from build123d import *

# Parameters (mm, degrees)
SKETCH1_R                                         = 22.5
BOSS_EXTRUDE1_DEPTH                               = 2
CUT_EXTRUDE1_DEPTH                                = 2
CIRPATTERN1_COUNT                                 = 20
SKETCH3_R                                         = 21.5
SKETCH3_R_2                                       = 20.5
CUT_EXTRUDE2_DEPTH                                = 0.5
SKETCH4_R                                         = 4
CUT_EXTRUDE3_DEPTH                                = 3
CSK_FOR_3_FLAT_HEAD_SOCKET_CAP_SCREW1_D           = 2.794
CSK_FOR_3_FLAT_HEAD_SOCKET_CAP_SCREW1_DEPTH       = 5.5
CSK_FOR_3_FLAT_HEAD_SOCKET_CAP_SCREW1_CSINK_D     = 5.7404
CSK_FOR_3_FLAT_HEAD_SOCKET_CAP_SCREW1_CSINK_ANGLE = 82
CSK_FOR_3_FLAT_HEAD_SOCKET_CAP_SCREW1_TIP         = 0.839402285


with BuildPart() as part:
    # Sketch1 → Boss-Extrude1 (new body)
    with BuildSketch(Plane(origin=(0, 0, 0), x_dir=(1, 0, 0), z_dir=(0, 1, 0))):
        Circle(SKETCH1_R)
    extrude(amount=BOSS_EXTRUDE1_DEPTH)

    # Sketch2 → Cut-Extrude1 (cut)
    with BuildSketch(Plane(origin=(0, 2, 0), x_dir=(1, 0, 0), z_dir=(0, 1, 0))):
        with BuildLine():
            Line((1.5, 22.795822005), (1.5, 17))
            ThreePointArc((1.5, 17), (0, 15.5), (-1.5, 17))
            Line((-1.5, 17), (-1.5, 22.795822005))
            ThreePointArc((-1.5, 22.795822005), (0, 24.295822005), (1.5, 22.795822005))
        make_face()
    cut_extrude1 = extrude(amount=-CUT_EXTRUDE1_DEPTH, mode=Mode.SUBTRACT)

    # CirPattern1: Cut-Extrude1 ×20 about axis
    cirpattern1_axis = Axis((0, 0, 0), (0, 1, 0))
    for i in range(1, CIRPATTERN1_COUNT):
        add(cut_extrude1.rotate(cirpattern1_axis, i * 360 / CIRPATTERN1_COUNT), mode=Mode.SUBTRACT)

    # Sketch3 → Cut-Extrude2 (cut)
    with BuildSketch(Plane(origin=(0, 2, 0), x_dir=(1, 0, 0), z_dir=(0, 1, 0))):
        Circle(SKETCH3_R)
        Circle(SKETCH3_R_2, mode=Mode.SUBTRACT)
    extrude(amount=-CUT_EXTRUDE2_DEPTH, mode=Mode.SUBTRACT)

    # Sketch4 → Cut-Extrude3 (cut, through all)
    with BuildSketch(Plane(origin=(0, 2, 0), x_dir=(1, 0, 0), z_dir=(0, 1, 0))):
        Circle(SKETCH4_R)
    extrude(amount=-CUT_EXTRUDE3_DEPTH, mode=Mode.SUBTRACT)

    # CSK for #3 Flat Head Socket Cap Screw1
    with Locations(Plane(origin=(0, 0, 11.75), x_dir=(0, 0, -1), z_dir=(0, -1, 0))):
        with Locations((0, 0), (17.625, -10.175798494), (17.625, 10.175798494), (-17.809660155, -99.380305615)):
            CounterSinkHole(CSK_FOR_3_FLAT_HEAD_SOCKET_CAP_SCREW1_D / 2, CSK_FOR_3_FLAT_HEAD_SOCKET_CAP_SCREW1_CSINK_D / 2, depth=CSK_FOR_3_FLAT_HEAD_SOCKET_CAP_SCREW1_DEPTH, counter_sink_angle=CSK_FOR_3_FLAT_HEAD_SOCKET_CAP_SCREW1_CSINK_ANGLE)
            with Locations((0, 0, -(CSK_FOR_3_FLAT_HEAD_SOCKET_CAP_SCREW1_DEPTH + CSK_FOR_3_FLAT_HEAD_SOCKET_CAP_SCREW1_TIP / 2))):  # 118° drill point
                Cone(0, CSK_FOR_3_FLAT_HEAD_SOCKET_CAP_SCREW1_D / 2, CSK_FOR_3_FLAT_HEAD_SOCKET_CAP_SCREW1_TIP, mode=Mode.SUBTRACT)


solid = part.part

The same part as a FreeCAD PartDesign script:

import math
import FreeCAD as App
import Part
import Sketcher
Q = App.Units.Quantity

doc = App.newDocument("Part")
body = doc.addObject("PartDesign::Body", "Body")

# Sketch on XZ plane
sketch1 = body.newObject("Sketcher::SketchObject", "Sketch")
sketch1.AttachmentSupport = (doc.getObject("XZ_Plane"), [""])
sketch1.MapMode = "FlatFace"
sketch1.addGeometry(Part.Circle(App.Vector(0, 0, 0), App.Vector(0, 0, 1), 22.5), False)
sketch1.addConstraint([
    Sketcher.Constraint("Coincident", 0, 3, -1, 1),
    Sketcher.Constraint("Diameter", 0, Q("45 mm")),
])
pad1 = body.newObject("PartDesign::Pad", "Pad")
pad1.Profile = sketch1
pad1.Length = 2
pad1.Reversed = True

# Sketch on XZ plane
sketch2 = body.newObject("Sketcher::SketchObject", "Sketch001")
sketch2.AttachmentSupport = (doc.getObject("XZ_Plane"), [""])
sketch2.MapMode = "FlatFace"
sketch2.AttachmentOffset = App.Placement(App.Vector(0, 0, -2), App.Rotation())
sketch2.addGeometry([
    Part.LineSegment(App.Vector(1.5, -17, 0), App.Vector(1.5, -22.795822, 0)),
    Part.ArcOfCircle(Part.Circle(App.Vector(0, -22.795822, 0), App.Vector(0, 0, 1), 1.5), math.radians(180), math.radians(360)),
    Part.LineSegment(App.Vector(-1.5, -22.795822, 0), App.Vector(-1.5, -17, 0)),
    Part.ArcOfCircle(Part.Circle(App.Vector(0, -17, 0), App.Vector(0, 0, 1), 1.5), math.radians(0), math.radians(180)),
], False)
sketch2.addConstraint([
    Sketcher.Constraint("Tangent", 0, 2, 1, 2),
    Sketcher.Constraint("Tangent", 1, 1, 2, 1),
    Sketcher.Constraint("Tangent", 2, 2, 3, 2),
    Sketcher.Constraint("Tangent", 3, 1, 0, 1),
    Sketcher.Constraint("Vertical", 0),
    Sketcher.Constraint("Vertical", 2),
    Sketcher.Constraint("PointOnObject", 1, 3, -2),
    Sketcher.Constraint("Radius", 1, Q("1.5 mm")),
    Sketcher.Constraint("DistanceY", 3, 3, -1, 1, Q("17 mm")),
    Sketcher.Constraint("DistanceY", 0, 2, 0, 1, Q("5.795822 mm")),
])
pocket1 = body.newObject("PartDesign::Pocket", "Pocket")
pocket1.Profile = sketch2
pocket1.Length = 2
pocket1.Reversed = True
doc.recompute()

polarpattern = body.newObject("PartDesign::PolarPattern", "PolarPattern")
polarpattern.Originals = [pocket1]
polarpattern.Axis = (doc.getObject("Y_Axis"), [""])
polarpattern.Angle = 360
polarpattern.Occurrences = 20
body.Tip = polarpattern

# Sketch on XZ plane
sketch3 = body.newObject("Sketcher::SketchObject", "Sketch002")
sketch3.AttachmentSupport = (doc.getObject("XZ_Plane"), [""])
sketch3.MapMode = "FlatFace"
sketch3.AttachmentOffset = App.Placement(App.Vector(0, 0, -2), App.Rotation())
sketch3.addGeometry([
    Part.Circle(App.Vector(0, 0, 0), App.Vector(0, 0, 1), 21.5),
    Part.Circle(App.Vector(0, 0, 0), App.Vector(0, 0, 1), 20.5),
], False)
sketch3.addConstraint([
    Sketcher.Constraint("Coincident", 0, 3, -1, 1),
    Sketcher.Constraint("Coincident", 1, 3, -1, 1),
    Sketcher.Constraint("Diameter", 0, Q("43 mm")),
    Sketcher.Constraint("Diameter", 1, Q("41 mm")),
])
pocket2 = body.newObject("PartDesign::Pocket", "Pocket001")
pocket2.Profile = sketch3
pocket2.Length = 0.5
pocket2.Reversed = True

# Sketch on XZ plane
sketch4 = body.newObject("Sketcher::SketchObject", "Sketch003")
sketch4.AttachmentSupport = (doc.getObject("XZ_Plane"), [""])
sketch4.MapMode = "FlatFace"
sketch4.AttachmentOffset = App.Placement(App.Vector(0, 0, -2), App.Rotation())
sketch4.addGeometry(Part.Circle(App.Vector(0, 0, 0), App.Vector(0, 0, 1), 4), False)
sketch4.addConstraint([
    Sketcher.Constraint("Coincident", 0, 3, -1, 1),
    Sketcher.Constraint("Diameter", 0, Q("8 mm")),
])
pocket3 = body.newObject("PartDesign::Pocket", "Pocket002")
pocket3.Profile = sketch4
pocket3.Type = "ThroughAll"
pocket3.Reversed = True

# Sketch on XZ plane
sketch5 = body.newObject("Sketcher::SketchObject", "Sketch004")
sketch5.AttachmentSupport = (doc.getObject("XZ_Plane"), [""])
sketch5.MapMode = "FlatFace"
sketch5.addGeometry([
    Part.Circle(App.Vector(0, 11.75, 0), App.Vector(0, 0, 1), 1.397),
    Part.Circle(App.Vector(-10.175798, -5.875, 0), App.Vector(0, 0, 1), 1.397),
    Part.Circle(App.Vector(10.175798, -5.875, 0), App.Vector(0, 0, 1), 1.397),
    Part.Circle(App.Vector(-99.380306, 29.55966, 0), App.Vector(0, 0, 1), 1.397),
], False)
sketch5.addConstraint([
    Sketcher.Constraint("Equal", 0, 1),
    Sketcher.Constraint("Equal", 1, 2),
    Sketcher.Constraint("Equal", 2, 3),
    Sketcher.Constraint("Symmetric", 1, 3, 2, 3, -2),
    Sketcher.Constraint("PointOnObject", 0, 3, -2),
    Sketcher.Constraint("Diameter", 0, Q("2.794 mm")),
    Sketcher.Constraint("DistanceY", -1, 1, 0, 3, Q("11.75 mm")),
    Sketcher.Constraint("DistanceY", 1, 3, -1, 1, Q("5.875 mm")),
    Sketcher.Constraint("DistanceX", 1, 3, -1, 1, Q("10.175798 mm")),
    Sketcher.Constraint("DistanceY", -1, 1, 3, 3, Q("29.55966 mm")),
    Sketcher.Constraint("DistanceX", 3, 3, -1, 1, Q("99.380306 mm")),
])
doc.recompute()
hole = body.newObject("PartDesign::Hole", "Hole")
hole.Profile = sketch5
hole.ThreadType = "None"
hole.Diameter = 2.794
hole.DepthType = "Dimension"
hole.Depth = 5.5
hole.DrillPoint = "Angled"
hole.DrillPointAngle = 118
hole.HoleCutType = "Countersink"
hole.HoleCutDiameter = 5.7404
hole.HoleCutCountersinkAngle = 82

doc.recompute()
